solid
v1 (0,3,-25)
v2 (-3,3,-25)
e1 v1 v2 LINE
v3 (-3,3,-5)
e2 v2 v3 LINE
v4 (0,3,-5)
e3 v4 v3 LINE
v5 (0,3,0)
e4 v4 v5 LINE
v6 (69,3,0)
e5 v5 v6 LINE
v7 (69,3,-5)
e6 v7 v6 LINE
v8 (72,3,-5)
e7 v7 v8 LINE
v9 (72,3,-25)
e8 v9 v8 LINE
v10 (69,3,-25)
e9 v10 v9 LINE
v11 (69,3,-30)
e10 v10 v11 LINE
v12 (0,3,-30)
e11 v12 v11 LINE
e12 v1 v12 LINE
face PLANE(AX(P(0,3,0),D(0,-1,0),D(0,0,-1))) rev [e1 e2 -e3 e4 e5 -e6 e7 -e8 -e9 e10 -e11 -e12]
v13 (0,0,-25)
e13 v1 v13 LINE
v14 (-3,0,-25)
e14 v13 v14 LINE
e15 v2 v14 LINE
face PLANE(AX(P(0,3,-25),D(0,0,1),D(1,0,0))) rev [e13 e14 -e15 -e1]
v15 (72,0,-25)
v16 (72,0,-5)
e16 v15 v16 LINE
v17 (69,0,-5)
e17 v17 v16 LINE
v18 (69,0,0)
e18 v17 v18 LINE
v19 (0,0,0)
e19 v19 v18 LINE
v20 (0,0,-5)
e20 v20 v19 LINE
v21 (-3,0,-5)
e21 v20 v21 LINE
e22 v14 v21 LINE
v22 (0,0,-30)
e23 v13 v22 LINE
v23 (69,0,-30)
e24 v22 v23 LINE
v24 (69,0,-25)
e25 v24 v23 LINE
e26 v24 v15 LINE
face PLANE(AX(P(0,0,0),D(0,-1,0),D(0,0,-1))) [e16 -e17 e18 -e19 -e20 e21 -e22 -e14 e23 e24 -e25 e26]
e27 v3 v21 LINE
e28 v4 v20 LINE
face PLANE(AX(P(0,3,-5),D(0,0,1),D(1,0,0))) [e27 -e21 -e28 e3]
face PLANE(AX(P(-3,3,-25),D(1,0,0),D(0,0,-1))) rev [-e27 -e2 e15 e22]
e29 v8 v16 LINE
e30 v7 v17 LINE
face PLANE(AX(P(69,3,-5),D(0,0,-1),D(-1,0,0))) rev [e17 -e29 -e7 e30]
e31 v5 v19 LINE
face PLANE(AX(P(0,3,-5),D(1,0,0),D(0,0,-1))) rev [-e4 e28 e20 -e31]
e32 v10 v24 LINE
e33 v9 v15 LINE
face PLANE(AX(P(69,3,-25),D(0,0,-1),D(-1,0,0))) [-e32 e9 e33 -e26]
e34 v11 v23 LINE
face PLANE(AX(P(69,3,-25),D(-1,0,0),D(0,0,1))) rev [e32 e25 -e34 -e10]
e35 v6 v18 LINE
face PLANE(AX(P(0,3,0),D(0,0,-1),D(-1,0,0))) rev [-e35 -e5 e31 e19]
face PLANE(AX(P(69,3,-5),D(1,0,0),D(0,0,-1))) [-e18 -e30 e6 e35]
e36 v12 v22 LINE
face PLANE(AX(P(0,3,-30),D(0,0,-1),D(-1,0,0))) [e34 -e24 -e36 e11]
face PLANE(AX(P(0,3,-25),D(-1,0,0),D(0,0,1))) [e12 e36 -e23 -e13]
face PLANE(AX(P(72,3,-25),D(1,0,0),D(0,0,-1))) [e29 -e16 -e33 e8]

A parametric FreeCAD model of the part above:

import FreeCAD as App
import Part
import Sketcher

doc = App.newDocument("Part")
body = doc.addObject("PartDesign::Body", "Body")

sketch1 = body.newObject("Sketcher::SketchObject", "Sketch")
sketch1.AttachmentSupport = (doc.getObject("XZ_Plane"), [""])
sketch1.MapMode = "FlatFace"
sketch1.addGeometry(Part.LineSegment(App.Vector(0, -30, 0), App.Vector(0, -25, 0)), False)
sketch1.addGeometry(Part.LineSegment(App.Vector(0, -25, 0), App.Vector(-3, -25, 0)), False)
sketch1.addGeometry(Part.LineSegment(App.Vector(-3, -25, 0), App.Vector(-3, -5, 0)), False)
sketch1.addGeometry(Part.LineSegment(App.Vector(-3, -5, 0), App.Vector(0, -5, 0)), False)
sketch1.addGeometry(Part.LineSegment(App.Vector(0, -5, 0), App.Vector(0, 0, 0)), False)
sketch1.addGeometry(Part.LineSegment(App.Vector(0, 0, 0), App.Vector(69, 0, 0)), False)
sketch1.addGeometry(Part.LineSegment(App.Vector(69, 0, 0), App.Vector(69, -5, 0)), False)
sketch1.addGeometry(Part.LineSegment(App.Vector(69, -5, 0), App.Vector(72, -5, 0)), False)
sketch1.addGeometry(Part.LineSegment(App.Vector(72, -5, 0), App.Vector(72, -25, 0)), False)
sketch1.addGeometry(Part.LineSegment(App.Vector(72, -25, 0), App.Vector(69, -25, 0)), False)
sketch1.addGeometry(Part.LineSegment(App.Vector(69, -25, 0), App.Vector(69, -30, 0)), False)
sketch1.addGeometry(Part.LineSegment(App.Vector(69, -30, 0), App.Vector(0, -30, 0)), False)
sketch1.addConstraint(Sketcher.Constraint("Coincident", 0, 2, 1, 1))
sketch1.addConstraint(Sketcher.Constraint("Coincident", 1, 2, 2, 1))
sketch1.addConstraint(Sketcher.Constraint("Coincident", 2, 2, 3, 1))
sketch1.addConstraint(Sketcher.Constraint("Coincident", 3, 2, 4, 1))
sketch1.addConstraint(Sketcher.Constraint("Coincident", 4, 2, 5, 1))
sketch1.addConstraint(Sketcher.Constraint("Coincident", 5, 2, 6, 1))
sketch1.addConstraint(Sketcher.Constraint("Coincident", 6, 2, 7, 1))
sketch1.addConstraint(Sketcher.Constraint("Coincident", 7, 2, 8, 1))
sketch1.addConstraint(Sketcher.Constraint("Coincident", 8, 2, 9, 1))
sketch1.addConstraint(Sketcher.Constraint("Coincident", 9, 2, 10, 1))
sketch1.addConstraint(Sketcher.Constraint("Coincident", 10, 2, 11, 1))
sketch1.addConstraint(Sketcher.Constraint("Coincident", 11, 2, 0, 1))
sketch1.addConstraint(Sketcher.Constraint("Vertical", 0))
sketch1.addConstraint(Sketcher.Constraint("Horizontal", 1))
sketch1.addConstraint(Sketcher.Constraint("Vertical", 2))
sketch1.addConstraint(Sketcher.Constraint("Horizontal", 3))
sketch1.addConstraint(Sketcher.Constraint("Vertical", 4))
sketch1.addConstraint(Sketcher.Constraint("Horizontal", 5))
sketch1.addConstraint(Sketcher.Constraint("Vertical", 6))
sketch1.addConstraint(Sketcher.Constraint("Horizontal", 7))
sketch1.addConstraint(Sketcher.Constraint("Vertical", 8))
sketch1.addConstraint(Sketcher.Constraint("Horizontal", 9))
sketch1.addConstraint(Sketcher.Constraint("Vertical", 10))
sketch1.addConstraint(Sketcher.Constraint("Horizontal", 11))
sketch1.addConstraint(Sketcher.Constraint("Coincident", 4, 2, -1, 1))
sketch1.addConstraint(Sketcher.Constraint("PointOnObject", 0, 2, -2))
sketch1.addConstraint(Sketcher.Constraint("Horizontal", 3, 2, 6, 2))
sketch1.addConstraint(Sketcher.Constraint("Horizontal", 1, 2, 8, 2))
sketch1.addConstraint(Sketcher.Constraint("Vertical", 6, 2, 9, 2))
sketch1.addConstraint(Sketcher.Constraint("Equal", 3, 7))
sketch1.addConstraint(Sketcher.Constraint("Equal", 0, 4))
sketch1.addConstraint(Sketcher.Constraint("DistanceX", 1, 2, 1, 1, 3.0))
sketch1.addConstraint(Sketcher.Constraint("DistanceX", 5, 1, 5, 2, 69.0))
sketch1.addConstraint(Sketcher.Constraint("DistanceY", 0, 1, 0, 2, 5.0))
sketch1.addConstraint(Sketcher.Constraint("DistanceY", 2, 1, 2, 2, 20.0))
pad1 = body.newObject("PartDesign::Pad", "Pad")
pad1.Profile = sketch1
pad1.Length = 3
pad1.Reversed = True

doc.recompute()
